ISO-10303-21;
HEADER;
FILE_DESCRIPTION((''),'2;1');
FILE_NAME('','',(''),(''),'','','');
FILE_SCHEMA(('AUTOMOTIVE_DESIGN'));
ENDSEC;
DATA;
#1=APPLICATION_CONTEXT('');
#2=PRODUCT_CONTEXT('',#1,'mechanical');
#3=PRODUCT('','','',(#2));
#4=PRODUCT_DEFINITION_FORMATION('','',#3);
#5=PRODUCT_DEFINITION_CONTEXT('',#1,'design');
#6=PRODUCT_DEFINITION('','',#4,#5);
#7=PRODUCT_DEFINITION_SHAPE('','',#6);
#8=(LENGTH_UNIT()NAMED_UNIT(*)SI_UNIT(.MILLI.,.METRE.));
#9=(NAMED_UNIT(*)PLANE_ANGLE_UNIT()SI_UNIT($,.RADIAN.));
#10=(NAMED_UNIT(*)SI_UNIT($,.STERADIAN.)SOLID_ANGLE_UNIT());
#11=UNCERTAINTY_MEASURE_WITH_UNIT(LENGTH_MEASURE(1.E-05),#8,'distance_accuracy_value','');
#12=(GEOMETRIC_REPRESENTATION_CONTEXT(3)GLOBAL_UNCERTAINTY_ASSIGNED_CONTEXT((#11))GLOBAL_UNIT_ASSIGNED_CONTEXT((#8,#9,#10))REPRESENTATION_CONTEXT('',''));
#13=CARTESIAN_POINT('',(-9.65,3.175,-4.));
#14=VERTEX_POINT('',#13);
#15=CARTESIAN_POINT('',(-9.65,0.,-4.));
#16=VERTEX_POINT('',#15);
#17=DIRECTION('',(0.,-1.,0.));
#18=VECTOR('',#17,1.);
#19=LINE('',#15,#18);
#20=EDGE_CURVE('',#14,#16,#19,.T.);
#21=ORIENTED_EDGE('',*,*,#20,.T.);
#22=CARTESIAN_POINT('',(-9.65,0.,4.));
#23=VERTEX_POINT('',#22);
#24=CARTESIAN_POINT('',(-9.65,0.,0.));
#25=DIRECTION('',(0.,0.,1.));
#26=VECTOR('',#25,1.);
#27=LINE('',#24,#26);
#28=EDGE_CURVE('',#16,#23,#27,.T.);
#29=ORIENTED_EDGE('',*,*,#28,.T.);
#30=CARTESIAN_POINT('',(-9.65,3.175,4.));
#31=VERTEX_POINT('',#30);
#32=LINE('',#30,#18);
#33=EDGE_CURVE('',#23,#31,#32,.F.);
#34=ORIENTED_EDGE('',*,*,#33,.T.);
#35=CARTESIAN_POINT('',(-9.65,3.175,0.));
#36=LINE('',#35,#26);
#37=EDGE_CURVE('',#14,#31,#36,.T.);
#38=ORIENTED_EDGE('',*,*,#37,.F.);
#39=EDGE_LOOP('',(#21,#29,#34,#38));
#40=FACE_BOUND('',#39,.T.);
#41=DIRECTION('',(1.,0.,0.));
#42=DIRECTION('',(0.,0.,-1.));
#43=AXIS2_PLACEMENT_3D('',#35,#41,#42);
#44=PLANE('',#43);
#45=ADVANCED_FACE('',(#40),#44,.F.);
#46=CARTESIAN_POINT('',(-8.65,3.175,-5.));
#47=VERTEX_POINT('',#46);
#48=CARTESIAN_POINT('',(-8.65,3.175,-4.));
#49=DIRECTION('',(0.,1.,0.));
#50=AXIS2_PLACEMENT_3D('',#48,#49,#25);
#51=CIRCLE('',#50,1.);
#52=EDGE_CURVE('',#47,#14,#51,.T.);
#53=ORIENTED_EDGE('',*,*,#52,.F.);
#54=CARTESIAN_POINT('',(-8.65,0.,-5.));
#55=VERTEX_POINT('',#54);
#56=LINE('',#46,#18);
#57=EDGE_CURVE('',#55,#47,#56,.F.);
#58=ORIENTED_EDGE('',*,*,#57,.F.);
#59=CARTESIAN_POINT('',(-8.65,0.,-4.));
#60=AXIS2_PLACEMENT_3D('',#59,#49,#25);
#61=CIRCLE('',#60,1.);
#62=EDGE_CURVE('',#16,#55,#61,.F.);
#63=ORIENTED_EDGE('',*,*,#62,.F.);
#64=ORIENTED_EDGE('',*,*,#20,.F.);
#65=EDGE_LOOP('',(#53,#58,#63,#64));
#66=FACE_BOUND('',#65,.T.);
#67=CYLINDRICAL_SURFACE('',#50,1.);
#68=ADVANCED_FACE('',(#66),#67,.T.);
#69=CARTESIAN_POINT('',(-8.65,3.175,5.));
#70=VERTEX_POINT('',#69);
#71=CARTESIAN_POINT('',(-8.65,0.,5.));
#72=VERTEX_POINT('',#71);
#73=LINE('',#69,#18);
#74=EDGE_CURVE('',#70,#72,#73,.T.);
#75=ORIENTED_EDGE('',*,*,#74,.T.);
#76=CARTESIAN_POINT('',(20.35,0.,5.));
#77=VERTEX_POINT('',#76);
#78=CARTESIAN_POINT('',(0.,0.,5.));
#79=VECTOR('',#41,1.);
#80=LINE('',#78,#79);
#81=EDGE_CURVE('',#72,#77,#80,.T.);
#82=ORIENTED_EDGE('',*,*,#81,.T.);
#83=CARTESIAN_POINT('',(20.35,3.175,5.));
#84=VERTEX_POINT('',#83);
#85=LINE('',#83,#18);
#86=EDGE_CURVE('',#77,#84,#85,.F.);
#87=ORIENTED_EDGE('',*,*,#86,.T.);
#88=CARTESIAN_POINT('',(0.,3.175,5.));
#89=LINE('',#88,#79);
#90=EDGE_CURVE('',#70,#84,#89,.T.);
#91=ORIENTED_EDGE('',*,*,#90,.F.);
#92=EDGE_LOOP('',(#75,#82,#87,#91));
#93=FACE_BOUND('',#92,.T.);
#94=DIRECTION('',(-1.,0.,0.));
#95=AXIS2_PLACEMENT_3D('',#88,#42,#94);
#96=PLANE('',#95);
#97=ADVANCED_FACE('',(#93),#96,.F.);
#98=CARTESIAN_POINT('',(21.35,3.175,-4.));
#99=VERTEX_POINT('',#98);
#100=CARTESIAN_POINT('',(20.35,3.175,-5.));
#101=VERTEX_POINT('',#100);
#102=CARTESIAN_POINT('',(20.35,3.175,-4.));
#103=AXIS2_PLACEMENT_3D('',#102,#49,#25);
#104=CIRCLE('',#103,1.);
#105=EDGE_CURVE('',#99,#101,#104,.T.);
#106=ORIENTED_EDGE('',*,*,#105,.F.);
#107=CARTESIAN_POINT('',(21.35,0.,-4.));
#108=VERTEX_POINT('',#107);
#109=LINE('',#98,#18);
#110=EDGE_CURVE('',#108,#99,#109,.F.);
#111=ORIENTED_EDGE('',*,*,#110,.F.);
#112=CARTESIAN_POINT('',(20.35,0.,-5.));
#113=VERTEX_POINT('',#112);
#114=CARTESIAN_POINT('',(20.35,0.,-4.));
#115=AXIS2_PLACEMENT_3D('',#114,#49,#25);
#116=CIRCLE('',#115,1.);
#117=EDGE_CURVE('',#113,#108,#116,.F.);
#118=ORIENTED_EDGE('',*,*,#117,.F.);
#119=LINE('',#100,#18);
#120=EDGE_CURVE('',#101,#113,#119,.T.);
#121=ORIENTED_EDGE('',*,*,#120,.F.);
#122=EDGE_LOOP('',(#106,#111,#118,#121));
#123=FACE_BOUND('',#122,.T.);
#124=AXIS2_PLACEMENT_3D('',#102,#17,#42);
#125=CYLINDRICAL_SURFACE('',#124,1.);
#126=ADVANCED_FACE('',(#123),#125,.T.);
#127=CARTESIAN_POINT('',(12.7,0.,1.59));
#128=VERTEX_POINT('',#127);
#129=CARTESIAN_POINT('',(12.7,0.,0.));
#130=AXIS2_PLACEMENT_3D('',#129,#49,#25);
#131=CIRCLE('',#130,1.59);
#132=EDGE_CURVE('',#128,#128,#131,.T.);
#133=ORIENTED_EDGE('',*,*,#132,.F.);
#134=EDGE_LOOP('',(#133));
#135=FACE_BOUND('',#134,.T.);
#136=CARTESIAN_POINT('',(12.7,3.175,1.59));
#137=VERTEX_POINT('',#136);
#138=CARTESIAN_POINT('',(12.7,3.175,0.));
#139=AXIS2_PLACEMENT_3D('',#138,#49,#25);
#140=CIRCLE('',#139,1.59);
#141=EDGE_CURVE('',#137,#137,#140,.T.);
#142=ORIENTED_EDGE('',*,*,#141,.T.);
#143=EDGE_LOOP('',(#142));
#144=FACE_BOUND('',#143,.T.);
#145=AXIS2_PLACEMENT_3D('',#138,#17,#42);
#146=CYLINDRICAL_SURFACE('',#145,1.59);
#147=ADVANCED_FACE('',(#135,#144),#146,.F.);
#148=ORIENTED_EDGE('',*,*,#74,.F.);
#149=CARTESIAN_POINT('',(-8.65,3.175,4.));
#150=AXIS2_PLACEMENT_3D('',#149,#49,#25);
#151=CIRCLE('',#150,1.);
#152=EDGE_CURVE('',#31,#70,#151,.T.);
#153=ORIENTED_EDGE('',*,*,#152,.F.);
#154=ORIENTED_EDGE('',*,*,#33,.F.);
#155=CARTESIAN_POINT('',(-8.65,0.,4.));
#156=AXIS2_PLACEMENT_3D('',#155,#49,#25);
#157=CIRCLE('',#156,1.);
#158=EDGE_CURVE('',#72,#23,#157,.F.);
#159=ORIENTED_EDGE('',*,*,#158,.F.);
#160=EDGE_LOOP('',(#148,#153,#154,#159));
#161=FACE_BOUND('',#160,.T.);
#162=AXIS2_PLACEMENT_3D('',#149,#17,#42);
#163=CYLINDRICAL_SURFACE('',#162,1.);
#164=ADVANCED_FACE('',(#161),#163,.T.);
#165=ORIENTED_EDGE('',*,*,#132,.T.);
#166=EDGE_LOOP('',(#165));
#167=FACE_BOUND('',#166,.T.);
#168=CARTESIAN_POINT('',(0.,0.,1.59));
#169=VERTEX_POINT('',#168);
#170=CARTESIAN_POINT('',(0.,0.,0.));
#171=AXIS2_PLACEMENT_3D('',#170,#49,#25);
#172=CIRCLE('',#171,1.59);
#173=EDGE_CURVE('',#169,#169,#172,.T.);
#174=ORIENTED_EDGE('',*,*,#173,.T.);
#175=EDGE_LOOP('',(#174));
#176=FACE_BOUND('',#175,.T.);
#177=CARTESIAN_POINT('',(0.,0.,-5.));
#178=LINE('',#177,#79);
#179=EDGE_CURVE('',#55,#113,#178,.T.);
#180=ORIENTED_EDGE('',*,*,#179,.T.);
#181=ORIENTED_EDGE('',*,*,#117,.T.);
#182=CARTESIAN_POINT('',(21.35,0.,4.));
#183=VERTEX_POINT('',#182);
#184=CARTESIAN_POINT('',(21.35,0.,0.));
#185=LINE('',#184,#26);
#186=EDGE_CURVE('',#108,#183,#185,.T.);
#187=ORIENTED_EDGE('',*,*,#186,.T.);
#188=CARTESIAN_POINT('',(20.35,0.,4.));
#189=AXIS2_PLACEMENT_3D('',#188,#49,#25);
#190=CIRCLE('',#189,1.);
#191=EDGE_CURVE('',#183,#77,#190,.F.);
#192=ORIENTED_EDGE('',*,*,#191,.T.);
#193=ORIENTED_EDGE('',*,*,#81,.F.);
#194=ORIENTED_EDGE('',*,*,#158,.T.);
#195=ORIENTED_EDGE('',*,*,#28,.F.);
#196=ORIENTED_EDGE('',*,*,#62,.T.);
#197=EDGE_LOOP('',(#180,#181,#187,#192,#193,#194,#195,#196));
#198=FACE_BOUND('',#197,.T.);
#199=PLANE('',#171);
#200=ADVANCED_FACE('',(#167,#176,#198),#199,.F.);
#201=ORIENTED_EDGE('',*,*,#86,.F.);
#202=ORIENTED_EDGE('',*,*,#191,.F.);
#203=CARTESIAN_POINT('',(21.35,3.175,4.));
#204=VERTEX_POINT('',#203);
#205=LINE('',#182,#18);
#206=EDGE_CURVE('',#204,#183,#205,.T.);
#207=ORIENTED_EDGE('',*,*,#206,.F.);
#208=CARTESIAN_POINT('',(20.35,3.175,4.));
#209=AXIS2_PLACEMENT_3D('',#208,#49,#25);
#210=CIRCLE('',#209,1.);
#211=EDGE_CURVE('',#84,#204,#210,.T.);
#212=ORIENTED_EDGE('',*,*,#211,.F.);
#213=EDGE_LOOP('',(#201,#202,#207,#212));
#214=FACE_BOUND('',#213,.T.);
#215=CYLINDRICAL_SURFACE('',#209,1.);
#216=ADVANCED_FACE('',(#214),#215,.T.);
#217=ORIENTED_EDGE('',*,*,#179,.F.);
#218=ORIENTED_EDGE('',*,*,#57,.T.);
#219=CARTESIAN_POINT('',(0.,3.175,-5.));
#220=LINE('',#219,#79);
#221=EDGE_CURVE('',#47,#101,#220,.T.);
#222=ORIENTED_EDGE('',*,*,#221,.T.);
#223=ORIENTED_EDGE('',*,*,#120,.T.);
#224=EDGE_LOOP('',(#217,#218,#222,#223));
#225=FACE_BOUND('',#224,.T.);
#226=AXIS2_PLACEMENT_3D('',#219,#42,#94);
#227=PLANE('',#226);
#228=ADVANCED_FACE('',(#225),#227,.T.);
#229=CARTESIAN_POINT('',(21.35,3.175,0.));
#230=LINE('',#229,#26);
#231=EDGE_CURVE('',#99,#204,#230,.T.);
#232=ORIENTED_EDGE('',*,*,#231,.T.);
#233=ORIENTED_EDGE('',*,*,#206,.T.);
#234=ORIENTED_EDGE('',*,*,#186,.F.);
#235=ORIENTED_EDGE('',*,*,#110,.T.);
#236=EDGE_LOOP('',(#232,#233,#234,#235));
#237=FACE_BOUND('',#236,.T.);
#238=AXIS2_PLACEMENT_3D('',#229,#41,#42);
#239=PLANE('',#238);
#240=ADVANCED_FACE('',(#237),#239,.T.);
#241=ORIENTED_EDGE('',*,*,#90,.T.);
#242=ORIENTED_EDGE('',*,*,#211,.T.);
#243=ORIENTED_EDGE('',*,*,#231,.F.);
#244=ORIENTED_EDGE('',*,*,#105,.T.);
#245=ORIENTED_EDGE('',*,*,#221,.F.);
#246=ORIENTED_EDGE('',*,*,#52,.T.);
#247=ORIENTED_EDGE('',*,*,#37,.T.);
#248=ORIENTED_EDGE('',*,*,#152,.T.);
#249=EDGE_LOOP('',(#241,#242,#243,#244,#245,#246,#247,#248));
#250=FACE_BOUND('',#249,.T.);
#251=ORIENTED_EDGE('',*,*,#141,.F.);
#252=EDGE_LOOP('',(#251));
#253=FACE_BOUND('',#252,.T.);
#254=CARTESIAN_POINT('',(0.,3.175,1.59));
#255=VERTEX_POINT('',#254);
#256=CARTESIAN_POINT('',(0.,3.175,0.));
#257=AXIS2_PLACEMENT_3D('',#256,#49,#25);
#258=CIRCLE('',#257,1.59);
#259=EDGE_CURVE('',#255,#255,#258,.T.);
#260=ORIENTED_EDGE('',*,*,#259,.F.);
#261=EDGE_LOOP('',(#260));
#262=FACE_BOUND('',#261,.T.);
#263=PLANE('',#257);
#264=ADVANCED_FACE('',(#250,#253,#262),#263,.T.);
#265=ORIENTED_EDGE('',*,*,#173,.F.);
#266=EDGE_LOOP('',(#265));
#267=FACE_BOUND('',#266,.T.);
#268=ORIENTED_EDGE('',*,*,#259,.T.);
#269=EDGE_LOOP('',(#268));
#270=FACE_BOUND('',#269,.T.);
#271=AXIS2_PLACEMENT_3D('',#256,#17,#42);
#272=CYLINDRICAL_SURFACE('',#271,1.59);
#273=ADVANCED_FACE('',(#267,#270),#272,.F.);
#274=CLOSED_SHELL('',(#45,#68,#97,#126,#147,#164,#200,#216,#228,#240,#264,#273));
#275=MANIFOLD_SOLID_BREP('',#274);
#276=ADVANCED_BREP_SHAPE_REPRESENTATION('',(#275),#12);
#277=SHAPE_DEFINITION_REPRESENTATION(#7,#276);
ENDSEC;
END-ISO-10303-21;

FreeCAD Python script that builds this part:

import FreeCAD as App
import Part
import Sketcher

V = App.Vector


def edges_at(feature, points):
    """Names of the edges that pass closest to the given points."""
    edges = feature.Shape.Edges
    near = lambda p: min(range(len(edges)), key=lambda i: edges[i].distToShape(Part.Vertex(*p))[0])
    return sorted({f"Edge{near(p) + 1}" for p in points})


def add_polygon(sketch, points):
    """Adds a closed chain of lines whose ends are joined by coincident constraints."""
    first, n = sketch.GeometryCount, len(points)
    for a, b in zip(points, points[1:] + points[:1]):
        sketch.addGeometry(Part.LineSegment(App.Vector(*a, 0), App.Vector(*b, 0)), False)
    for i in range(n):
        sketch.addConstraint(Sketcher.Constraint("Coincident", first + i, 2, first + (i + 1) % n, 1))

doc = App.newDocument("Part")
body = doc.addObject("PartDesign::Body", "Body")

sketch1 = body.newObject("Sketcher::SketchObject", "Sketch")
sketch1.AttachmentSupport = (doc.getObject("XZ_Plane"), [""])
sketch1.MapMode = "FlatFace"
add_polygon(sketch1, [(21.35, 5), (21.35, -5), (-9.65, -5), (-9.65, 5)])
sketch1.addGeometry(Part.Circle(V(0, 0, 0), V(0, 0, 1), 1.59), False)
sketch1.addGeometry(Part.Circle(V(12.7, 0, 0), V(0, 0, 1), 1.59), False)
sketch1.addConstraint(Sketcher.Constraint("Vertical", 0))
sketch1.addConstraint(Sketcher.Constraint("Horizontal", 1))
sketch1.addConstraint(Sketcher.Constraint("Vertical", 2))
sketch1.addConstraint(Sketcher.Constraint("Horizontal", 3))
sketch1.addConstraint(Sketcher.Constraint("Coincident", 4, 3, -1, 1))
sketch1.addConstraint(Sketcher.Constraint("Equal", 4, 5))
sketch1.addConstraint(Sketcher.Constraint("PointOnObject", 5, 3, -1))
sketch1.addConstraint(Sketcher.Constraint("Diameter", 4, 3.18))
sketch1.addConstraint(Sketcher.Constraint("DistanceX", 1, 2, 1, 1, 31.0))
sketch1.addConstraint(Sketcher.Constraint("DistanceY", 0, 2, 0, 1, 10.0))
sketch1.addConstraint(Sketcher.Constraint("DistanceY", 0, 2, -1, 1, 5.0))
sketch1.addConstraint(Sketcher.Constraint("DistanceX", -1, 1, 5, 3, 12.7))
sketch1.addConstraint(Sketcher.Constraint("DistanceX", -1, 1, 0, 2, 21.35))
pad1 = body.newObject("PartDesign::Pad", "Pad")
pad1.Profile = sketch1
pad1.Length = 3.175
pad1.Reversed = True
doc.recompute()

fillet = body.newObject("PartDesign::Fillet", "Fillet")
fillet.Base = (pad1, edges_at(pad1, [
    (-9.65, 1.587, 5),
    (-9.65, 1.587, -5),
    (21.35, 1.587, -5),
    (21.35, 1.587, 5),
]))
fillet.Radius = 1

doc.recompute()
